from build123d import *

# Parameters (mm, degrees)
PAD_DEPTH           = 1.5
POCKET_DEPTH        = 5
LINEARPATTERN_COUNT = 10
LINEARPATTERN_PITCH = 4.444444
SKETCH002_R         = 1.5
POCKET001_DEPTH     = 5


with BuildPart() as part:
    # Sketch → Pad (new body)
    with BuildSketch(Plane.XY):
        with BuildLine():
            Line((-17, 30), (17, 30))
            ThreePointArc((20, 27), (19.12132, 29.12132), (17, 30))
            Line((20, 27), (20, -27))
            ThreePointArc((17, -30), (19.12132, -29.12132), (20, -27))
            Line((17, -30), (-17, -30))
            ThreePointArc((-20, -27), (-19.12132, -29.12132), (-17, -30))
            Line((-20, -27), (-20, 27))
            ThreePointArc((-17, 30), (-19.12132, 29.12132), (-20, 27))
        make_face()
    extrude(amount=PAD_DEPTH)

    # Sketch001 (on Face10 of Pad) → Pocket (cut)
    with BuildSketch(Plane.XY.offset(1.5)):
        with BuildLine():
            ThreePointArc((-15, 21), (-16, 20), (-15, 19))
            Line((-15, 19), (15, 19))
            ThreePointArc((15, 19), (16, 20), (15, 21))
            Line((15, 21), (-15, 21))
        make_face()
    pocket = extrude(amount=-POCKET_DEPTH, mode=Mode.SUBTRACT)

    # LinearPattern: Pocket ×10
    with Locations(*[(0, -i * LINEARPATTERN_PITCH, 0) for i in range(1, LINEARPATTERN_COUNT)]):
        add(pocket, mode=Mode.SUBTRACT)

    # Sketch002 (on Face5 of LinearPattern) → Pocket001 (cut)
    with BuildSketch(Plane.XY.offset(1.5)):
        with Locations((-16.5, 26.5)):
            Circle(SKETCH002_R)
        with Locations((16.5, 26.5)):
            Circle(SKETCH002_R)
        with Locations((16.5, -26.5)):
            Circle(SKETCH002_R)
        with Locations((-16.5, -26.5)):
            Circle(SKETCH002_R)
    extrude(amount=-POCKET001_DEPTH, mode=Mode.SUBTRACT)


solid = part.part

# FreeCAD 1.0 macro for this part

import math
import FreeCAD as App
import Part
import Sketcher
from FreeCAD import Vector

doc = App.newDocument("Part")
body = doc.addObject("PartDesign::Body", "Body")

# Sketch on XY plane
sketch1 = doc.addObject("Sketcher::SketchObject", "Sketch")
body.addObject(sketch1)
sketch1.AttachmentSupport = (doc.XY_Plane, [""])
sketch1.MapMode = "FlatFace"
sketch1.addGeometry([
    Part.LineSegment(Vector(17, 30, 0), Vector(-17, 30, 0)),  # 0
    Part.ArcOfCircle(Part.Circle(Vector(-17, 27, 0), Vector(0, 0, 1), 3), math.radians(90), math.radians(180)),  # 1
    Part.LineSegment(Vector(-20, 27, 0), Vector(-20, -27, 0)),  # 2
    Part.ArcOfCircle(Part.Circle(Vector(-17, -27, 0), Vector(0, 0, 1), 3), math.radians(-180), math.radians(-90)),  # 3
    Part.LineSegment(Vector(-17, -30, 0), Vector(17, -30, 0)),  # 4
    Part.ArcOfCircle(Part.Circle(Vector(17, -27, 0), Vector(0, 0, 1), 3), math.radians(-90), math.radians(0)),  # 5
    Part.LineSegment(Vector(20, -27, 0), Vector(20, 27, 0)),  # 6
    Part.ArcOfCircle(Part.Circle(Vector(17, 27, 0), Vector(0, 0, 1), 3), math.radians(0), math.radians(90)),  # 7
], False)
sketch1.addConstraint([
    Sketcher.Constraint("Tangent", 0, 2, 1, 1),
    Sketcher.Constraint("Tangent", 1, 2, 2, 1),
    Sketcher.Constraint("Tangent", 2, 2, 3, 1),
    Sketcher.Constraint("Tangent", 3, 2, 4, 1),
    Sketcher.Constraint("Tangent", 4, 2, 5, 1),
    Sketcher.Constraint("Tangent", 5, 2, 6, 1),
    Sketcher.Constraint("Tangent", 6, 2, 7, 1),
    Sketcher.Constraint("Tangent", 7, 2, 0, 1),
    Sketcher.Constraint("Horizontal", 0),
    Sketcher.Constraint("Vertical", 2),
    Sketcher.Constraint("Horizontal", 4),
    Sketcher.Constraint("Vertical", 6),
    Sketcher.Constraint("Equal", 1, 3),
    Sketcher.Constraint("Equal", 3, 5),
    Sketcher.Constraint("Equal", 5, 7),
    Sketcher.Constraint("Symmetric", 1, 3, 5, 3, -1, 1),
    Sketcher.Constraint("Radius", 1, 3.000001),
    Sketcher.Constraint("DistanceX", 0, 2, 0, 1, 34.0),
    Sketcher.Constraint("DistanceY", 2, 2, 2, 1, 54.0),
])
pad1 = doc.addObject("PartDesign::Pad", "Pad")
body.addObject(pad1)
pad1.Profile = sketch1
pad1.Length = 1.5

# Sketch on XY plane
sketch2 = doc.addObject("Sketcher::SketchObject", "Sketch001")
body.addObject(sketch2)
sketch2.AttachmentSupport = (doc.XY_Plane, [""])
sketch2.MapMode = "FlatFace"
sketch2.AttachmentOffset = App.Placement(Vector(0, 0, 1.5), App.Rotation())
sketch2.addGeometry([
    Part.ArcOfCircle(Part.Circle(Vector(-15, 20, 0), Vector(0, 0, 1), 1), math.radians(90), math.radians(270)),
    Part.LineSegment(Vector(-15, 19, 0), Vector(15, 19, 0)),
    Part.ArcOfCircle(Part.Circle(Vector(15, 20, 0), Vector(0, 0, 1), 1), math.radians(-90), math.radians(90)),
    Part.LineSegment(Vector(15, 21, 0), Vector(-15, 21, 0)),
], False)
sketch2.addConstraint([
    Sketcher.Constraint("Tangent", 0, 2, 1, 1),
    Sketcher.Constraint("Tangent", 1, 2, 2, 1),
    Sketcher.Constraint("Tangent", 2, 2, 3, 1),
    Sketcher.Constraint("Tangent", 3, 2, 0, 1),
    Sketcher.Constraint("Horizontal", 1),
    Sketcher.Constraint("Horizontal", 3),
    Sketcher.Constraint("Radius", 0, 1.0),
    Sketcher.Constraint("DistanceX", 1, 1, 1, 2, 30.0),
    Sketcher.Constraint("DistanceX", 0, 3, -1, 1, 15.0),
    Sketcher.Constraint("DistanceY", -1, 1, 0, 3, 20.0),
])
pocket1 = doc.addObject("PartDesign::Pocket", "Pocket")
body.addObject(pocket1)
pocket1.Profile = sketch2
pocket1.Length = 5
doc.recompute()

linearpattern = doc.addObject("PartDesign::LinearPattern", "LinearPattern")
body.addObject(linearpattern)
linearpattern.Originals = [pocket1]
linearpattern.Direction = (doc.Y_Axis, [""])
linearpattern.Mode = "offset"
linearpattern.Offset = 4.444444
linearpattern.Occurrences = 10
linearpattern.Reversed = True
body.Tip = linearpattern

# Sketch on XY plane
sketch3 = doc.addObject("Sketcher::SketchObject", "Sketch002")
body.addObject(sketch3)
sketch3.AttachmentSupport = (doc.XY_Plane, [""])
sketch3.MapMode = "FlatFace"
sketch3.AttachmentOffset = App.Placement(Vector(0, 0, 1.5), App.Rotation())
sketch3.addGeometry([
    Part.Circle(Vector(-16.5, 26.5, 0), Vector(0, 0, 1), 1.5),
    Part.Circle(Vector(16.5, 26.5, 0), Vector(0, 0, 1), 1.5),
    Part.Circle(Vector(16.5, -26.5, 0), Vector(0, 0, 1), 1.5),
    Part.Circle(Vector(-16.5, -26.5, 0), Vector(0, 0, 1), 1.5),
], False)
sketch3.addConstraint([
    Sketcher.Constraint("Equal", 0, 1),
    Sketcher.Constraint("Equal", 1, 2),
    Sketcher.Constraint("Equal", 2, 3),
    Sketcher.Constraint("Symmetric", 0, 3, 2, 3, -1, 1),
    Sketcher.Constraint("Symmetric", 1, 3, 3, 3, -1, 1),
    Sketcher.Constraint("Symmetric", 0, 3, 1, 3, -2),
    Sketcher.Constraint("Diameter", 0, 3.0),
    Sketcher.Constraint("DistanceX", 0, 3, 1, 3, 33.0),
    Sketcher.Constraint("DistanceY", 2, 3, 1, 3, 53.0),
])
pocket2 = doc.addObject("PartDesign::Pocket", "Pocket001")
body.addObject(pocket2)
pocket2.Profile = sketch3
pocket2.Length = 5

doc.recompute()
